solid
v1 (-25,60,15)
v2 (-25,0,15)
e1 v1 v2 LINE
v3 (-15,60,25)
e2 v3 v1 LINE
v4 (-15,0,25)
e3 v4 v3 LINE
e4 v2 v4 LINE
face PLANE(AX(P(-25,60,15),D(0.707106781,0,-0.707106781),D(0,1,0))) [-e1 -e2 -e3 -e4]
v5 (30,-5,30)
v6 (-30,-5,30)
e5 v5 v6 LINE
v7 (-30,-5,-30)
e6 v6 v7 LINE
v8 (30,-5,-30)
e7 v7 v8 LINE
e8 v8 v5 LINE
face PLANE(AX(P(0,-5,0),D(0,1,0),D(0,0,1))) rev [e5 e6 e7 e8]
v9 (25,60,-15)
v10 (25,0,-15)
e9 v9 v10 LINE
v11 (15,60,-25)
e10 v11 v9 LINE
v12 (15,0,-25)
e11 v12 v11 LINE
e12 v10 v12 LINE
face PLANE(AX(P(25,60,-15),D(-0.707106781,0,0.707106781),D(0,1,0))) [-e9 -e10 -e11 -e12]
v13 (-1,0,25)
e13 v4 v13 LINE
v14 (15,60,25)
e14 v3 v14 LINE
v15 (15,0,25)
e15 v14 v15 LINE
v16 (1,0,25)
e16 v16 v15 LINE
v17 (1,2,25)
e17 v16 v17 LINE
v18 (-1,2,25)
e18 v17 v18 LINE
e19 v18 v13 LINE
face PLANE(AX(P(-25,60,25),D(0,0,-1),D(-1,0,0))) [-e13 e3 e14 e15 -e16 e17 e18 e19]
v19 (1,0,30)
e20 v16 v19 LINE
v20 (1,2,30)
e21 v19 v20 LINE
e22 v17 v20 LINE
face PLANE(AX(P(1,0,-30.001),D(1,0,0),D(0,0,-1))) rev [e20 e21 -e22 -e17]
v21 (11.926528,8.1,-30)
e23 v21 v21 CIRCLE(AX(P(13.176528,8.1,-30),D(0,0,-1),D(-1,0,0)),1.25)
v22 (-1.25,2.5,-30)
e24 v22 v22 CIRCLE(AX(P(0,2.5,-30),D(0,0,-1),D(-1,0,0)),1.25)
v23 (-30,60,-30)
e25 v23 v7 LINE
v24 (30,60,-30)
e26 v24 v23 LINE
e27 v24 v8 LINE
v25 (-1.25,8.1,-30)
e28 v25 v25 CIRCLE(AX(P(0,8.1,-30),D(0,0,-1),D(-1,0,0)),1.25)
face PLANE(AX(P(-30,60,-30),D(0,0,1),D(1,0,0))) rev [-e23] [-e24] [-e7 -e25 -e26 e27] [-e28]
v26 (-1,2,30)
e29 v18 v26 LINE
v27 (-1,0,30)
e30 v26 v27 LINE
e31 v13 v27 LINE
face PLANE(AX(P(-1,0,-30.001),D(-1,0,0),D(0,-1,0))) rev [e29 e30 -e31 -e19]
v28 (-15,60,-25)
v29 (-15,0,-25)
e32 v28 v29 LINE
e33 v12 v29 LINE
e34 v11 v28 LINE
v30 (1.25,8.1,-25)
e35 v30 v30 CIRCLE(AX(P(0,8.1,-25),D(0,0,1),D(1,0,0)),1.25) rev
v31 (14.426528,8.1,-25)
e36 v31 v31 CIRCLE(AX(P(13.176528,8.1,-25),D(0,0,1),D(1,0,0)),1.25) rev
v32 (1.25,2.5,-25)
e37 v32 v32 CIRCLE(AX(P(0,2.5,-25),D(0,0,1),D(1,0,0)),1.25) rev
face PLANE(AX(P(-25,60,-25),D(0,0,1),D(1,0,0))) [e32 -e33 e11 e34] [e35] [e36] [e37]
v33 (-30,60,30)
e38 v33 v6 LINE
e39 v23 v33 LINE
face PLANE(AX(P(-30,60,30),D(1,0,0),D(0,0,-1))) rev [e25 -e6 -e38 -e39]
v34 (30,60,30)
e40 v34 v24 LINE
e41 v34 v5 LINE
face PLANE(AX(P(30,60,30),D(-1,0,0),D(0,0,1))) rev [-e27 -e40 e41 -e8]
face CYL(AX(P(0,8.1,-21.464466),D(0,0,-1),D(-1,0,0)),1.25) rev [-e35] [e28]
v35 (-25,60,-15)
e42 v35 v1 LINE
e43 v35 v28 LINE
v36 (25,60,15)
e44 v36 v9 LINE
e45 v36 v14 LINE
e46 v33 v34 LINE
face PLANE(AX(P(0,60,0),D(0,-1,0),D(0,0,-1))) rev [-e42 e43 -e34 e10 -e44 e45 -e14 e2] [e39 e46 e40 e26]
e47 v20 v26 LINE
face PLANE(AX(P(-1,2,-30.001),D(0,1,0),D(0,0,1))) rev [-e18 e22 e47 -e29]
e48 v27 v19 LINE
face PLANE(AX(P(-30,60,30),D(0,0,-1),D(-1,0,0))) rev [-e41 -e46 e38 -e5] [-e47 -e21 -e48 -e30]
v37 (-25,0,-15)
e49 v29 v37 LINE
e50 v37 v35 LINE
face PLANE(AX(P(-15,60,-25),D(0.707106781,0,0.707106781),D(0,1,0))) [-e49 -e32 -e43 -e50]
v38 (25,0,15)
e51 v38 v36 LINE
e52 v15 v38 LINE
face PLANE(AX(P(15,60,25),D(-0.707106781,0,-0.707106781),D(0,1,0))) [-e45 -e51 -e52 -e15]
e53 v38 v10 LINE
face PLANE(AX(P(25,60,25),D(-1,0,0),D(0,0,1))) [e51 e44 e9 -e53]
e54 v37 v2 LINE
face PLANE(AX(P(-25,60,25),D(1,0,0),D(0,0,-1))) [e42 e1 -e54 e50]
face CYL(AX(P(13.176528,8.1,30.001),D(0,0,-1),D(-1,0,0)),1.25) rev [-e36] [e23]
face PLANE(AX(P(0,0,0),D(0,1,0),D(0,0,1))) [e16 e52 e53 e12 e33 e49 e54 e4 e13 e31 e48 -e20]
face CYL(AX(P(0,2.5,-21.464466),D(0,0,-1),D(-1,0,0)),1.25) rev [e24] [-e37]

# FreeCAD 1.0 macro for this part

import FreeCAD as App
import Part
import Sketcher


def edges_at(feature, points):
    """Names of the edges that pass closest to the given points."""
    edges = feature.Shape.Edges
    near = lambda p: min(range(len(edges)), key=lambda i: edges[i].distToShape(Part.Vertex(*p))[0])
    return sorted({f"Edge{near(p) + 1}" for p in points})

doc = App.newDocument("Part")
body = doc.addObject("PartDesign::Body", "Body")

# Sketch on XZ plane
sketch1 = doc.addObject("Sketcher::SketchObject", "Sketch")
body.addObject(sketch1)
sketch1.AttachmentSupport = (doc.XZ_Plane, [""])
sketch1.MapMode = "FlatFace"
sketch1.addGeometry([
    Part.LineSegment(App.Vector(-30, -30, 0), App.Vector(-30, 30, 0)),  # 0
    Part.LineSegment(App.Vector(-30, 30, 0), App.Vector(30, 30, 0)),  # 1
    Part.LineSegment(App.Vector(30, 30, 0), App.Vector(30, -30, 0)),  # 2
    Part.LineSegment(App.Vector(30, -30, 0), App.Vector(-30, -30, 0)),  # 3
    Part.LineSegment(App.Vector(25, 25, 0), App.Vector(-25, 25, 0)),  # 4
    Part.LineSegment(App.Vector(-25, 25, 0), App.Vector(-25, -25, 0)),  # 5
    Part.LineSegment(App.Vector(-25, -25, 0), App.Vector(25, -25, 0)),  # 6
    Part.LineSegment(App.Vector(25, -25, 0), App.Vector(25, 25, 0)),  # 7
], False)
sketch1.addConstraint([
    Sketcher.Constraint("Coincident", 0, 2, 1, 1),
    Sketcher.Constraint("Coincident", 1, 2, 2, 1),
    Sketcher.Constraint("Coincident", 2, 2, 3, 1),
    Sketcher.Constraint("Coincident", 3, 2, 0, 1),
    Sketcher.Constraint("Coincident", 4, 2, 5, 1),
    Sketcher.Constraint("Coincident", 5, 2, 6, 1),
    Sketcher.Constraint("Coincident", 6, 2, 7, 1),
    Sketcher.Constraint("Coincident", 7, 2, 4, 1),
    Sketcher.Constraint("Vertical", 0),
    Sketcher.Constraint("Horizontal", 1),
    Sketcher.Constraint("Vertical", 2),
    Sketcher.Constraint("Horizontal", 3),
    Sketcher.Constraint("Horizontal", 4),
    Sketcher.Constraint("Vertical", 5),
    Sketcher.Constraint("Horizontal", 6),
    Sketcher.Constraint("Vertical", 7),
    Sketcher.Constraint("Symmetric", 0, 2, 2, 2, -1, 1),
    Sketcher.Constraint("Symmetric", 4, 2, 6, 2, -1, 1),
    Sketcher.Constraint("Equal", 3, 0),
    Sketcher.Constraint("Equal", 6, 5),
    Sketcher.Constraint("DistanceX", 1, 1, 1, 2, 60.0),
    Sketcher.Constraint("DistanceX", 4, 2, 4, 1, 50.0),
])
pad1 = doc.addObject("PartDesign::Pad", "Pad")
body.addObject(pad1)
pad1.Profile = sketch1
pad1.Length = 60
pad1.Reversed = True

# Sketch on XZ plane
sketch2 = doc.addObject("Sketcher::SketchObject", "Sketch001")
body.addObject(sketch2)
sketch2.AttachmentSupport = (doc.XZ_Plane, [""])
sketch2.MapMode = "FlatFace"
sketch2.addGeometry([
    Part.LineSegment(App.Vector(-30, 30, 0), App.Vector(-30, -30, 0)),
    Part.LineSegment(App.Vector(-30, -30, 0), App.Vector(30, -30, 0)),
    Part.LineSegment(App.Vector(30, -30, 0), App.Vector(30, 30, 0)),
    Part.LineSegment(App.Vector(30, 30, 0), App.Vector(-30, 30, 0)),
], False)
sketch2.addConstraint([
    Sketcher.Constraint("Coincident", 0, 2, 1, 1),
    Sketcher.Constraint("Coincident", 1, 2, 2, 1),
    Sketcher.Constraint("Coincident", 2, 2, 3, 1),
    Sketcher.Constraint("Coincident", 3, 2, 0, 1),
    Sketcher.Constraint("Vertical", 0),
    Sketcher.Constraint("Horizontal", 1),
    Sketcher.Constraint("Vertical", 2),
    Sketcher.Constraint("Horizontal", 3),
    Sketcher.Constraint("Symmetric", 0, 2, 2, 2, -1, 1),
    Sketcher.Constraint("Equal", 3, 0),
    Sketcher.Constraint("DistanceX", 1, 1, 1, 2, 60.0),
])
pad2 = doc.addObject("PartDesign::Pad", "Pad001")
body.addObject(pad2)
pad2.Profile = sketch2
pad2.Length = 5

# Sketch on XY plane
sketch3 = doc.addObject("Sketcher::SketchObject", "Sketch002")
body.addObject(sketch3)
sketch3.AttachmentSupport = (doc.XY_Plane, [""])
sketch3.MapMode = "FlatFace"
sketch3.AttachmentOffset = App.Placement(App.Vector(0, 0, -30), App.Rotation())
sketch3.addGeometry([
    Part.Circle(App.Vector(0, 2.5, 0), App.Vector(0, 0, 1), 1.2),
    Part.Circle(App.Vector(0, 8.1, 0), App.Vector(0, 0, 1), 1.2),
], False)
sketch3.addConstraint([
    Sketcher.Constraint("Equal", 0, 1),
    Sketcher.Constraint("PointOnObject", 0, 3, -2),
    Sketcher.Constraint("PointOnObject", 1, 3, -2),
    Sketcher.Constraint("Diameter", 0, 2.5),
    Sketcher.Constraint("DistanceY", -1, 1, 0, 3, 2.5),
    Sketcher.Constraint("DistanceY", -1, 1, 1, 3, 8.1),
])
pocket1 = doc.addObject("PartDesign::Pocket", "Pocket")
body.addObject(pocket1)
pocket1.Profile = sketch3
pocket1.Length = 5
pocket1.Reversed = True

# Sketch on XY plane
sketch4 = doc.addObject("Sketcher::SketchObject", "Sketch003")
body.addObject(sketch4)
sketch4.AttachmentSupport = (doc.XY_Plane, [""])
sketch4.MapMode = "FlatFace"
sketch4.AttachmentOffset = App.Placement(App.Vector(0, 0, -30), App.Rotation())
sketch4.addGeometry(Part.Circle(App.Vector(13.2, 8.1, 0), App.Vector(0, 0, 1), 1.2), False)
sketch4.addConstraint([
    Sketcher.Constraint("Diameter", 0, 2.5),
    Sketcher.Constraint("DistanceY", -1, 1, 0, 3, 8.1),
    Sketcher.Constraint("DistanceX", -1, 1, 0, 3, 13.176528),
])
pocket2 = doc.addObject("PartDesign::Pocket", "Pocket001")
body.addObject(pocket2)
pocket2.Profile = sketch4
pocket2.Type = "UpToFirst"
pocket2.Reversed = True
doc.recompute()

chamfer = doc.addObject("PartDesign::Chamfer", "Chamfer")
body.addObject(chamfer)
chamfer.Base = (pocket2, edges_at(pocket2, [
    (25, 30, 25),
    (25, 30, -25),
    (-25, 30, -25),
    (-25, 30, 25),
]))
chamfer.Size = 10

# Sketch on XY plane
sketch5 = doc.addObject("Sketcher::SketchObject", "Sketch004")
body.addObject(sketch5)
sketch5.AttachmentSupport = (doc.XY_Plane, [""])
sketch5.MapMode = "FlatFace"
sketch5.AttachmentOffset = App.Placement(App.Vector(0, 0, 30), App.Rotation())
sketch5.addGeometry([
    Part.LineSegment(App.Vector(-1, 2, 0), App.Vector(-1, 0, 0)),
    Part.LineSegment(App.Vector(-1, 0, 0), App.Vector(1, 0, 0)),
    Part.LineSegment(App.Vector(1, 0, 0), App.Vector(1, 2, 0)),
    Part.LineSegment(App.Vector(1, 2, 0), App.Vector(-1, 2, 0)),
], False)
sketch5.addConstraint([
    Sketcher.Constraint("Coincident", 0, 2, 1, 1),
    Sketcher.Constraint("Coincident", 1, 2, 2, 1),
    Sketcher.Constraint("Coincident", 2, 2, 3, 1),
    Sketcher.Constraint("Coincident", 3, 2, 0, 1),
    Sketcher.Constraint("Vertical", 0),
    Sketcher.Constraint("Horizontal", 1),
    Sketcher.Constraint("Vertical", 2),
    Sketcher.Constraint("Horizontal", 3),
    Sketcher.Constraint("Symmetric", 0, 2, 1, 2, -1, 1),
    Sketcher.Constraint("Equal", 3, 0),
    Sketcher.Constraint("DistanceX", 1, 1, 1, 2, 2.0),
])
pocket3 = doc.addObject("PartDesign::Pocket", "Pocket002")
body.addObject(pocket3)
pocket3.Profile = sketch5
pocket3.Type = "UpToFirst"

doc.recompute()
